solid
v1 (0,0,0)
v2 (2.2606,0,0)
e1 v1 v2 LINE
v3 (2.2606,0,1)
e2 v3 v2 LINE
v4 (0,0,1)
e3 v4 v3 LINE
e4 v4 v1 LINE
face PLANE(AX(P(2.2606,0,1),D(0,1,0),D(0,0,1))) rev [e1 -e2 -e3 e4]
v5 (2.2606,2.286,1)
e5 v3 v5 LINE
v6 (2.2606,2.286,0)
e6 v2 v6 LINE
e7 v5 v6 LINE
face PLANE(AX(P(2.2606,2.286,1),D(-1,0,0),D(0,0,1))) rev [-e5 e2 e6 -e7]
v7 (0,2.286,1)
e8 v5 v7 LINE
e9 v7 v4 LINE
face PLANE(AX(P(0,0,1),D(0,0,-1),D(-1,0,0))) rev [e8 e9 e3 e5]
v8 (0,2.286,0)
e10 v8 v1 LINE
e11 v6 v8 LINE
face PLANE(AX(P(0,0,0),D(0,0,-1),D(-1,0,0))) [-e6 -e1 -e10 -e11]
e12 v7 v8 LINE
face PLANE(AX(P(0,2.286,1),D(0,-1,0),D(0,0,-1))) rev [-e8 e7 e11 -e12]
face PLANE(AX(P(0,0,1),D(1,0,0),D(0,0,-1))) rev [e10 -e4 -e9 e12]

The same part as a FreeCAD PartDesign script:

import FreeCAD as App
import Part
import Sketcher

V = App.Vector
Q = App.Units.Quantity


def add_polygon(sketch, points):
    """Adds a closed chain of lines whose ends are joined by coincident constraints."""
    first, n = sketch.GeometryCount, len(points)
    for a, b in zip(points, points[1:] + points[:1]):
        sketch.addGeometry(Part.LineSegment(App.Vector(*a, 0), App.Vector(*b, 0)), False)
    for i in range(n):
        sketch.addConstraint(Sketcher.Constraint("Coincident", first + i, 2, first + (i + 1) % n, 1))

doc = App.newDocument("Part")
params = doc.addObject("Spreadsheet::Sheet", "Params")
for row, (alias, value) in enumerate([
    ("sketch1_height", "0.09 in"),
    ("sketch1_width", "0.089 in"),
    ("pad1_length", "1 mm"),
], start=1):
    params.set(f"A{row}", alias)
    params.set(f"B{row}", "=" + value)
    params.setAlias(f"B{row}", alias)

body = doc.addObject("PartDesign::Body", "Body")

sketch1 = body.newObject("Sketcher::SketchObject", "Sketch")
sketch1.AttachmentSupport = (doc.getObject("XY_Plane"), [""])
sketch1.MapMode = "FlatFace"
add_polygon(sketch1, [(0, 2.3), (0, 0), (2.3, 0), (2.3, 2.3)])
sketch1.addConstraint([
    Sketcher.Constraint("Vertical", 0),
    Sketcher.Constraint("Horizontal", 1),
    Sketcher.Constraint("Vertical", 2),
    Sketcher.Constraint("Horizontal", 3),
    Sketcher.Constraint("Coincident", 0, 2, -1, 1),
    Sketcher.Constraint("DistanceY", 0, 2, 0, 1, Q("0.09 in")),
    Sketcher.Constraint("DistanceX", 1, 1, 1, 2, Q("0.089 in")),
])
sketch1.setExpression("Constraints[9]", "Params.sketch1_height")
sketch1.setExpression("Constraints[10]", "Params.sketch1_width")
pad1 = body.newObject("PartDesign::Pad", "Pad")
pad1.Profile = sketch1
pad1.setExpression("Length", "Params.pad1_length")

doc.recompute()
